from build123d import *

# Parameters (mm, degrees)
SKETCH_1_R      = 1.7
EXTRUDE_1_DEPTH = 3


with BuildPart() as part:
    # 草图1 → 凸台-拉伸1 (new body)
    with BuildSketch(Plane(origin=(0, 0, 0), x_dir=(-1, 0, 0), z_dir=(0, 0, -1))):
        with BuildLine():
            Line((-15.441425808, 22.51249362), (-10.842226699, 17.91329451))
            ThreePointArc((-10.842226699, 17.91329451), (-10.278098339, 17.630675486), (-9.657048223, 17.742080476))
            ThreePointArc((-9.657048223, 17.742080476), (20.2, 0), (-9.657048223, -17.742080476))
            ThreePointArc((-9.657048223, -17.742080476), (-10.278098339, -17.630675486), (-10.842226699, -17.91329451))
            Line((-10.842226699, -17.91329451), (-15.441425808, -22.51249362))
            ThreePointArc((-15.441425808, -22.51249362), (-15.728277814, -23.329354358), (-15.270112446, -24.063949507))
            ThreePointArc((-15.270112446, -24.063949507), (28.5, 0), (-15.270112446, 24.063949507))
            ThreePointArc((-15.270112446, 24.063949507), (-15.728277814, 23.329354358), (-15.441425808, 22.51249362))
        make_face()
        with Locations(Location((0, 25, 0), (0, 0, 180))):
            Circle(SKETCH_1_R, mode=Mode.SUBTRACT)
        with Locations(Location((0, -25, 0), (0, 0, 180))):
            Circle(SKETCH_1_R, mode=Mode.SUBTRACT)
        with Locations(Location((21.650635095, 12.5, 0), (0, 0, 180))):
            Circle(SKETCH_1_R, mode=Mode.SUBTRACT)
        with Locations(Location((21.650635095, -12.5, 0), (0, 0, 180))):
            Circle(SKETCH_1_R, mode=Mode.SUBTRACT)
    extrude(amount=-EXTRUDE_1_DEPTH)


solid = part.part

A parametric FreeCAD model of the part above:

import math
import FreeCAD as App
import Part
import Sketcher

doc = App.newDocument("Part")
body = doc.addObject("PartDesign::Body", "Body")

sketch1 = body.newObject("Sketcher::SketchObject", "Sketch")
sketch1.AttachmentSupport = (doc.getObject("XY_Plane"), [""])
sketch1.MapMode = "FlatFace"
sketch1.addGeometry([
    Part.LineSegment(App.Vector(15.441426, 22.512494, 0), App.Vector(10.842227, 17.913295, 0)),
    Part.ArcOfCircle(Part.Circle(App.Vector(10.13512, 18.620401, 0), App.Vector(0, 0, 1), 1), math.radians(-118.559537), math.radians(-45)),
    Part.ArcOfCircle(Part.Circle(App.Vector(0, 0, 0), App.Vector(0, 0, 1), 20.2), math.radians(61.440463), math.radians(298.559537)),
    Part.ArcOfCircle(Part.Circle(App.Vector(10.13512, -18.620401, 0), App.Vector(0, 0, 1), 1), math.radians(45), math.radians(118.559537)),
    Part.LineSegment(App.Vector(10.842227, -17.913295, 0), App.Vector(15.441426, -22.512494, 0)),
    Part.ArcOfCircle(Part.Circle(App.Vector(14.734319, -23.2196, 0), App.Vector(0, 0, 1), 1), math.radians(-57.602265), math.radians(45)),
    Part.ArcOfCircle(Part.Circle(App.Vector(0, 0, 0), App.Vector(0, 0, 1), 28.5), math.radians(57.602265), math.radians(302.397735)),
    Part.ArcOfCircle(Part.Circle(App.Vector(14.734319, 23.2196, 0), App.Vector(0, 0, 1), 1), math.radians(-45), math.radians(57.602265)),
    Part.Circle(App.Vector(0, -25, 0), App.Vector(0, 0, 1), 1.7),
    Part.Circle(App.Vector(-21.650635, -12.5, 0), App.Vector(0, 0, 1), 1.7),
    Part.Circle(App.Vector(0, 25, 0), App.Vector(0, 0, 1), 1.7),
    Part.Circle(App.Vector(-21.650635, 12.5, 0), App.Vector(0, 0, 1), 1.7),
], False)
sketch1.addConstraint([
    Sketcher.Constraint("Tangent", 0, 2, 1, 2),
    Sketcher.Constraint("Tangent", 1, 1, 2, 1),
    Sketcher.Constraint("Tangent", 2, 2, 3, 2),
    Sketcher.Constraint("Tangent", 3, 1, 4, 1),
    Sketcher.Constraint("Tangent", 4, 2, 5, 2),
    Sketcher.Constraint("Tangent", 5, 1, 6, 2),
    Sketcher.Constraint("Tangent", 6, 1, 7, 2),
    Sketcher.Constraint("Tangent", 7, 1, 0, 1),
    Sketcher.Constraint("Coincident", 2, 3, -1, 1),
    Sketcher.Constraint("Coincident", 6, 3, -1, 1),
    Sketcher.Constraint("Equal", 1, 3),
    Sketcher.Constraint("Equal", 3, 5),
    Sketcher.Constraint("Equal", 5, 7),
    Sketcher.Constraint("Equal", 8, 9),
    Sketcher.Constraint("Equal", 9, 10),
    Sketcher.Constraint("Equal", 10, 11),
    Sketcher.Constraint("Symmetric", 8, 3, 10, 3, -1, 1),
    Sketcher.Constraint("Symmetric", 9, 3, 11, 3, -1),
    Sketcher.Constraint("Symmetric", 0, 2, 3, 1, -1),
    Sketcher.Constraint("PointOnObject", 8, 3, -2),
    Sketcher.Constraint("Perpendicular", 0, 4),
    Sketcher.Constraint("Radius", 1, 1.0),
    Sketcher.Constraint("Diameter", 8, 3.4),
    Sketcher.Constraint("Radius", 2, 20.2),
    Sketcher.Constraint("Radius", 6, 28.5),
    Sketcher.Constraint("DistanceY", 8, 3, -1, 1, 25.0),
    Sketcher.Constraint("DistanceY", 9, 3, 11, 3, 25.0),
    Sketcher.Constraint("DistanceY", 5, 3, 1, 3, 41.840002),
    Sketcher.Constraint("DistanceX", 9, 3, -1, 1, 21.650635),
])
pad1 = body.newObject("PartDesign::Pad", "Pad")
pad1.Profile = sketch1
pad1.Length = 3

doc.recompute()
